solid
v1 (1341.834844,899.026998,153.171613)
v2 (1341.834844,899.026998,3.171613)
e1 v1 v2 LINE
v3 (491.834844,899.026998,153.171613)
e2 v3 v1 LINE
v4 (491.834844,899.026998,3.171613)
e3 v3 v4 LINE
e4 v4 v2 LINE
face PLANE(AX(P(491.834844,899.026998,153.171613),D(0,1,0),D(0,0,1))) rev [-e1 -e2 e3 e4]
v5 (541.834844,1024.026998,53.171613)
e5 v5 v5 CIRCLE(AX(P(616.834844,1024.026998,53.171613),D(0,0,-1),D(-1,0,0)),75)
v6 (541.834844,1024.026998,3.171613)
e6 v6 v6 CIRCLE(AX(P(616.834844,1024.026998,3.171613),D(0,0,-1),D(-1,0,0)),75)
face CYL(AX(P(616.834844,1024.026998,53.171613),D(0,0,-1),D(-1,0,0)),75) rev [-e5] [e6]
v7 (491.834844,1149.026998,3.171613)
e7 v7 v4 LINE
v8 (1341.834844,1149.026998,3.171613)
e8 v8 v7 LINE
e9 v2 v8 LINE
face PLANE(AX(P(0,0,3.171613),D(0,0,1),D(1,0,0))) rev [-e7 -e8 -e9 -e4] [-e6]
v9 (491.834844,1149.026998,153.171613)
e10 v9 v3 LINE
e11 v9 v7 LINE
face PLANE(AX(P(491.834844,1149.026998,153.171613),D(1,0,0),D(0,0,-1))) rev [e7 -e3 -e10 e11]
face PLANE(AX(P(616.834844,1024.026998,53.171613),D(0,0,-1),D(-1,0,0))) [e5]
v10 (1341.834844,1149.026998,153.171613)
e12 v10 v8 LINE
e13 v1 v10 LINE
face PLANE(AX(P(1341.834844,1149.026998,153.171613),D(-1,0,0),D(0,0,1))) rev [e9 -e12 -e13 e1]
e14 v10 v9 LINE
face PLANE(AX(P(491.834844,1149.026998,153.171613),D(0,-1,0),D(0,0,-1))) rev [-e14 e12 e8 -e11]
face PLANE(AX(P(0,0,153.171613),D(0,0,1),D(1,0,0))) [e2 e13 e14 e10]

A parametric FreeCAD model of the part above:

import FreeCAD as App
import Part
import Sketcher
from FreeCAD import Vector
Q = App.Units.Quantity


def add_polygon(sketch, points):
    """Adds a closed chain of lines whose ends are joined by coincident constraints."""
    first, n = sketch.GeometryCount, len(points)
    for a, b in zip(points, points[1:] + points[:1]):
        sketch.addGeometry(Part.LineSegment(App.Vector(*a, 0), App.Vector(*b, 0)), False)
    for i in range(n):
        sketch.addConstraint(Sketcher.Constraint("Coincident", first + i, 2, first + (i + 1) % n, 1))

doc = App.newDocument("Part")
body = doc.addObject("PartDesign::Body", "Body")

# Sketch on XY plane
sketch1 = body.newObject("Sketcher::SketchObject", "Sketch")
sketch1.AttachmentSupport = (doc.getObject("XY_Plane"), [""])
sketch1.MapMode = "FlatFace"
sketch1.AttachmentOffset = App.Placement(Vector(0, 0, 3.171613), App.Rotation())
add_polygon(sketch1, [(491.834844, 1149.026998), (491.834844, 899.026998), (1341.834844, 899.026998), (1341.834844, 1149.026998)])  # lines 0-3
sketch1.addConstraint([
    Sketcher.Constraint("Vertical", 0),
    Sketcher.Constraint("Horizontal", 1),
    Sketcher.Constraint("Vertical", 2),
    Sketcher.Constraint("Horizontal", 3),
    Sketcher.Constraint("DistanceX", 1, 1, 1, 2, Q("850 mm")),
    Sketcher.Constraint("DistanceY", 0, 2, 0, 1, Q("250 mm")),
    Sketcher.Constraint("DistanceX", -1, 1, 0, 2, Q("491.834844 mm")),
    Sketcher.Constraint("DistanceY", -1, 1, 0, 2, Q("899.026998 mm")),
])
pad1 = body.newObject("PartDesign::Pad", "Pad")
pad1.Profile = sketch1
pad1.Length = 150

# Sketch on XY plane
sketch2 = body.newObject("Sketcher::SketchObject", "Sketch001")
sketch2.AttachmentSupport = (doc.getObject("XY_Plane"), [""])
sketch2.MapMode = "FlatFace"
sketch2.AttachmentOffset = App.Placement(Vector(0, 0, 3.171613), App.Rotation())
sketch2.addGeometry(Part.Circle(Vector(616.834844, 1024.026998, 0), Vector(0, 0, 1), 75), False)
sketch2.addConstraint([
    Sketcher.Constraint("Diameter", 0, Q("150 mm")),
    Sketcher.Constraint("DistanceX", -1, 1, 0, 3, Q("616.834844 mm")),
    Sketcher.Constraint("DistanceY", -1, 1, 0, 3, Q("1024.026998 mm")),
])
pocket1 = body.newObject("PartDesign::Pocket", "Pocket")
pocket1.Profile = sketch2
pocket1.Length = 50
pocket1.Reversed = True

doc.recompute()
